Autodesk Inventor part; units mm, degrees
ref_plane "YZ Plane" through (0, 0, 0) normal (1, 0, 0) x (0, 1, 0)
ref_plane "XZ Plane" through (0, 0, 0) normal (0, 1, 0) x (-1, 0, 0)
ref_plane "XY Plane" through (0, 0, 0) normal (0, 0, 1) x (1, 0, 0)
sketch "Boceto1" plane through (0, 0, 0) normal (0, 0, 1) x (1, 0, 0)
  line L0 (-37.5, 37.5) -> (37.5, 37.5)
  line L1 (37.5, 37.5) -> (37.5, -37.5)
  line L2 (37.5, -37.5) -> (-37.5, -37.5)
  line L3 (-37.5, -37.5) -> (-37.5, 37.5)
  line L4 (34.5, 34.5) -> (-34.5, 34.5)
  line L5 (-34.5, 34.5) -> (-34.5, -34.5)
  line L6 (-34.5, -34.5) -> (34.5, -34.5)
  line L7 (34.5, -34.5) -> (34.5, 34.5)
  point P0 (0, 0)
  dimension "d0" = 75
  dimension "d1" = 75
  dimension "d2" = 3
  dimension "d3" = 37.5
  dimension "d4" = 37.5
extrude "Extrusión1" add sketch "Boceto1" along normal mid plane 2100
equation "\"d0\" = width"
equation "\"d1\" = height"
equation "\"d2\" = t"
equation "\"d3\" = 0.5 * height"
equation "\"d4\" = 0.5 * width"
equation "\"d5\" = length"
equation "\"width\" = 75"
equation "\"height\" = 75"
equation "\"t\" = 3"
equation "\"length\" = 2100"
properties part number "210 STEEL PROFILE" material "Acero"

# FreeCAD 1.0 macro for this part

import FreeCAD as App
import Part
import Sketcher
from FreeCAD import Vector
Q = App.Units.Quantity

doc = App.newDocument("Part")
body = doc.addObject("PartDesign::Body", "Body")

# Sketch on XY plane
sketch1 = body.newObject("Sketcher::SketchObject", "Sketch")
sketch1.AttachmentSupport = (doc.getObject("XY_Plane"), [""])
sketch1.MapMode = "FlatFace"
sketch1.addGeometry([
    Part.LineSegment(Vector(38, 38, 0), Vector(-38, 38, 0)),  # 0
    Part.LineSegment(Vector(-38, 38, 0), Vector(-38, -38, 0)),  # 1
    Part.LineSegment(Vector(-38, -38, 0), Vector(38, -38, 0)),  # 2
    Part.LineSegment(Vector(38, -38, 0), Vector(38, 38, 0)),  # 3
    Part.LineSegment(Vector(-34, 34, 0), Vector(34, 34, 0)),  # 4
    Part.LineSegment(Vector(34, 34, 0), Vector(34, -34, 0)),  # 5
    Part.LineSegment(Vector(34, -34, 0), Vector(-34, -34, 0)),  # 6
    Part.LineSegment(Vector(-34, -34, 0), Vector(-34, 34, 0)),  # 7
], False)
sketch1.addConstraint([
    Sketcher.Constraint("Coincident", 0, 2, 1, 1),
    Sketcher.Constraint("Coincident", 1, 2, 2, 1),
    Sketcher.Constraint("Coincident", 2, 2, 3, 1),
    Sketcher.Constraint("Coincident", 3, 2, 0, 1),
    Sketcher.Constraint("Coincident", 4, 2, 5, 1),
    Sketcher.Constraint("Coincident", 5, 2, 6, 1),
    Sketcher.Constraint("Coincident", 6, 2, 7, 1),
    Sketcher.Constraint("Coincident", 7, 2, 4, 1),
    Sketcher.Constraint("Horizontal", 0),
    Sketcher.Constraint("Vertical", 1),
    Sketcher.Constraint("Horizontal", 2),
    Sketcher.Constraint("Vertical", 3),
    Sketcher.Constraint("Horizontal", 4),
    Sketcher.Constraint("Vertical", 5),
    Sketcher.Constraint("Horizontal", 6),
    Sketcher.Constraint("Vertical", 7),
    Sketcher.Constraint("Symmetric", 0, 2, 2, 2, -1, 1),
    Sketcher.Constraint("Symmetric", 4, 2, 6, 2, -1, 1),
    Sketcher.Constraint("Equal", 2, 1),
    Sketcher.Constraint("Equal", 6, 5),
    Sketcher.Constraint("DistanceX", 0, 2, 0, 1, Q("75 mm")),
    Sketcher.Constraint("DistanceX", 4, 2, 3, 2, Q("3 mm")),
])
pad1 = body.newObject("PartDesign::Pad", "Pad")
pad1.Profile = sketch1
pad1.Length = 2100
pad1.Midplane = True

doc.recompute()
